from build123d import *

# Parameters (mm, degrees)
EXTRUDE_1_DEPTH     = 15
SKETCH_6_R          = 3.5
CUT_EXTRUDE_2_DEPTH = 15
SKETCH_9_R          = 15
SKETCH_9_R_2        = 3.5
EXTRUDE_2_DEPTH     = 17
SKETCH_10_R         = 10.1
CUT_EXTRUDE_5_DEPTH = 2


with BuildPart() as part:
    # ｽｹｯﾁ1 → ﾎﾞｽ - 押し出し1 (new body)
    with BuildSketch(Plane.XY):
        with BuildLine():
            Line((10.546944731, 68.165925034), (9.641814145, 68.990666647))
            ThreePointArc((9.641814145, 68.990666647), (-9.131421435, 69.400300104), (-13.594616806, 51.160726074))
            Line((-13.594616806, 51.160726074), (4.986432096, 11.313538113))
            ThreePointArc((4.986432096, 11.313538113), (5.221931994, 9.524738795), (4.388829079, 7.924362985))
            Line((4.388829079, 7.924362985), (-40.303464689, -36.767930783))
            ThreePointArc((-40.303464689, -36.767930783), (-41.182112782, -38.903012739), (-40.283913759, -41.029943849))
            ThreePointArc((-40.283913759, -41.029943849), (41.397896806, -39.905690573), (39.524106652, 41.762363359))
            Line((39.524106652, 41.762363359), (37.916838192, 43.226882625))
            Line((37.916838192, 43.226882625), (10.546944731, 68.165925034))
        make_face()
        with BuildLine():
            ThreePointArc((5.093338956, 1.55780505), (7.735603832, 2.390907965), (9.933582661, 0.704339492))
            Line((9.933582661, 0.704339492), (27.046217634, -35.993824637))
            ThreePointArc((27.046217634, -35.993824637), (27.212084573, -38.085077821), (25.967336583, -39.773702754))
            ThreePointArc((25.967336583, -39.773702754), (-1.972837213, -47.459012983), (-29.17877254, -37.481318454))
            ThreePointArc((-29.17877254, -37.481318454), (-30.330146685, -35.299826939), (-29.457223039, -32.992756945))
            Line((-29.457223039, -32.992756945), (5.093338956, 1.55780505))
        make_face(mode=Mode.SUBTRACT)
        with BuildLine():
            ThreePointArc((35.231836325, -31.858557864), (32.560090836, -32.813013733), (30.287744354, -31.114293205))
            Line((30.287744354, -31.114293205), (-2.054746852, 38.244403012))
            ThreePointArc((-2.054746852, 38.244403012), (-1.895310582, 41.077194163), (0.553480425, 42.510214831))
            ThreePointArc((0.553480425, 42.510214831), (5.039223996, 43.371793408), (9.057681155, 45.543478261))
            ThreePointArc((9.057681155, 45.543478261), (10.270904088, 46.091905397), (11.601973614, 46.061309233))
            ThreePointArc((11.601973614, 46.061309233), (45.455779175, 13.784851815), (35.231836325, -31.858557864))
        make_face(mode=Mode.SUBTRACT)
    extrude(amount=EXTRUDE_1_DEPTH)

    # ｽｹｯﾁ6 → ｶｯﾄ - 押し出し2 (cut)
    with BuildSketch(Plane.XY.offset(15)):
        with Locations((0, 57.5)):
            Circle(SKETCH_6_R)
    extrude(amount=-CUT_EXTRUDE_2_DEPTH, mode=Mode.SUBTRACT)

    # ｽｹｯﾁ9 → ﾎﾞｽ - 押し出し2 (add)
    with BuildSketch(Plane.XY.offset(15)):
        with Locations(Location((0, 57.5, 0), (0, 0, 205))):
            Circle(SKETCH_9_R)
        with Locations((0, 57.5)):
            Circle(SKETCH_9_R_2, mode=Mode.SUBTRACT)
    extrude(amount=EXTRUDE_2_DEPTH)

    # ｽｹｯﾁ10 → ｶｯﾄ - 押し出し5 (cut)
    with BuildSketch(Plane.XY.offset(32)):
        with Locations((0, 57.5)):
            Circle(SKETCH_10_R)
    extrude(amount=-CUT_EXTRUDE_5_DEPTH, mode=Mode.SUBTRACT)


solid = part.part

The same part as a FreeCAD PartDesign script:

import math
import FreeCAD as App
import Part
import Sketcher

doc = App.newDocument("Part")
params = doc.addObject("Spreadsheet::Sheet", "Params")
for row, (alias, value) in enumerate([
    ("sketch1_radius", "15 mm"),
    ("sketch1_radius2", "3 mm"),
    ("sketch1_radius3", "3 mm"),
    ("sketch1_radius4", "3 mm"),
    ("sketch1_radius5", "3 mm"),
    ("pad1_length", "15 mm"),
    ("sketch2_diameter", "7 mm"),
    ("pocket1_length", "15 mm"),
    ("sketch3_diameter", "30 mm"),
    ("sketch3_diameter2", "7 mm"),
    ("pad2_length", "17 mm"),
    ("sketch4_diameter", "20.2 mm"),
    ("pocket2_length", "2 mm"),
], start=1):
    params.set(f"A{row}", alias)
    params.set(f"B{row}", "=" + value)
    params.setAlias(f"B{row}", alias)

body = doc.addObject("PartDesign::Body", "Body")

# Sketch on XY plane
sketch1 = body.newObject("Sketcher::SketchObject", "Sketch")
sketch1.AttachmentSupport = (doc.getObject("XY_Plane"), [""])
sketch1.MapMode = "FlatFace"
sketch1.addGeometry([
    Part.LineSegment(App.Vector(10.546945, 68.165925, 0), App.Vector(9.641814, 68.990667, 0)),  # 0
    Part.ArcOfCircle(Part.Circle(App.Vector(0, 57.5, 0), App.Vector(0, 0, 1), 15), math.radians(50), math.radians(205)),  # 1
    Part.LineSegment(App.Vector(-13.594617, 51.160726, 0), App.Vector(4.986432, 11.313538, 0)),  # 2
    Part.ArcOfCircle(Part.Circle(App.Vector(2.267509, 10.045683, 0), App.Vector(0, 0, 1), 3), math.radians(-45), math.radians(25)),  # 3
    Part.LineSegment(App.Vector(4.388829, 7.924363, 0), App.Vector(-40.303465, -36.767931, 0)),  # 4
    Part.ArcOfCircle(Part.Circle(App.Vector(-38.182144, -38.889251, 0), App.Vector(0, 0, 1), 3), math.radians(135), math.radians(225.525657)),  # 5
    Part.ArcOfCircle(Part.Circle(App.Vector(0, 0, 0), App.Vector(0, 0, 1), 57.5), math.radians(-134.474343), math.radians(46.577265)),  # 6
    Part.LineSegment(App.Vector(39.524107, 41.762363, 0), App.Vector(37.916838, 43.226883, 0)),  # 7
    Part.LineSegment(App.Vector(37.916838, 43.226883, 0), App.Vector(10.546945, 68.165925, 0)),  # 8
    Part.LineSegment(App.Vector(-29.457223, -32.992757, 0), App.Vector(5.093339, 1.557805, 0)),  # 9
    Part.ArcOfCircle(Part.Circle(App.Vector(7.214659, -0.563515, 0), App.Vector(0, 0, 1), 3), math.radians(25), math.radians(135)),  # 10
    Part.LineSegment(App.Vector(9.933583, 0.704339, 0), App.Vector(27.046218, -35.993825, 0)),  # 11
    Part.ArcOfCircle(Part.Circle(App.Vector(24.327294, -37.261679, 0), App.Vector(0, 0, 1), 3), math.radians(-56.860403), math.radians(25)),  # 12
    Part.ArcOfCircle(Part.Circle(App.Vector(0, 0, 0), App.Vector(0, 0, 1), 47.5), math.radians(-127.900345), math.radians(-56.860403)),  # 13
    Part.ArcOfCircle(Part.Circle(App.Vector(-27.335903, -35.114077, 0), App.Vector(0, 0, 1), 3), math.radians(135), math.radians(232.099655)),  # 14
    Part.ArcOfCircle(Part.Circle(App.Vector(0, 0, 0), App.Vector(0, 0, 1), 47.5), math.radians(-42.121615), math.radians(75.862362)),  # 15
    Part.ArcOfCircle(Part.Circle(App.Vector(33.006668, -29.846438, 0), App.Vector(0, 0, 1), 3), math.radians(-155), math.radians(-42.121615)),  # 16
    Part.LineSegment(App.Vector(30.287744, -31.114293, 0), App.Vector(-2.054747, 38.244403, 0)),  # 17
    Part.ArcOfCircle(Part.Circle(App.Vector(0.664177, 39.512258, 0), App.Vector(0, 0, 1), 3), math.radians(92.11462), math.radians(205)),  # 18
    Part.ArcOfCircle(Part.Circle(App.Vector(0, 57.5, 0), App.Vector(0, 0, 1), 15), math.radians(-87.88538), math.radians(-52.854196)),  # 19
    Part.ArcOfCircle(Part.Circle(App.Vector(10.869217, 43.152174, 0), App.Vector(0, 0, 1), 3), math.radians(75.862362), math.radians(127.145804)),  # 20
], False)
sketch1.addConstraint([
    Sketcher.Constraint("Coincident", 0, 2, 1, 1),
    Sketcher.Constraint("Coincident", 1, 2, 2, 1),
    Sketcher.Constraint("Coincident", 2, 2, 3, 2),
    Sketcher.Constraint("Coincident", 3, 1, 4, 1),
    Sketcher.Constraint("Coincident", 4, 2, 5, 1),
    Sketcher.Constraint("Coincident", 5, 2, 6, 1),
    Sketcher.Constraint("Coincident", 6, 2, 7, 1),
    Sketcher.Constraint("Coincident", 7, 2, 8, 1),
    Sketcher.Constraint("Coincident", 8, 2, 0, 1),
    Sketcher.Constraint("Coincident", 9, 2, 10, 2),
    Sketcher.Constraint("Coincident", 10, 1, 11, 1),
    Sketcher.Constraint("Coincident", 11, 2, 12, 2),
    Sketcher.Constraint("Coincident", 12, 1, 13, 2),
    Sketcher.Constraint("Coincident", 13, 1, 14, 2),
    Sketcher.Constraint("Coincident", 14, 1, 9, 1),
    Sketcher.Constraint("Coincident", 15, 1, 16, 2),
    Sketcher.Constraint("Coincident", 16, 1, 17, 1),
    Sketcher.Constraint("Coincident", 17, 2, 18, 2),
    Sketcher.Constraint("Coincident", 18, 1, 19, 1),
    Sketcher.Constraint("Coincident", 19, 2, 20, 2),
    Sketcher.Constraint("Coincident", 20, 1, 15, 2),
    Sketcher.Constraint("Coincident", 6, 3, -1, 1),
    Sketcher.Constraint("Coincident", 13, 3, -1, 1),
    Sketcher.Constraint("Coincident", 15, 3, -1, 1),
    Sketcher.Constraint("Coincident", 19, 3, 1, 3),
    Sketcher.Constraint("PointOnObject", 1, 3, -2),
    Sketcher.Constraint("Radius", 1, 15.0),
    Sketcher.Constraint("Radius", 3, 3.0),
    Sketcher.Constraint("Radius", 5, 3.0),
    Sketcher.Constraint("Radius", 10, 3.0),
    Sketcher.Constraint("Radius", 12, 3.0),
    Sketcher.Constraint("Radius", 14, 3.0),
    Sketcher.Constraint("Radius", 16, 3.0),
    Sketcher.Constraint("Radius", 18, 3.0),
    Sketcher.Constraint("Radius", 19, 15.0),
    Sketcher.Constraint("Radius", 20, 3.0),
    Sketcher.Constraint("Radius", 6, 57.5),
    Sketcher.Constraint("Radius", 13, 47.5),
    Sketcher.Constraint("Radius", 15, 47.5),
    Sketcher.Constraint("DistanceY", -1, 1, 1, 3, 57.5),
    Sketcher.Constraint("DistanceY", 10, 3, 3, 3, 10.609199),
    Sketcher.Constraint("DistanceY", 1, 2, 8, 2, 17.005199),
    Sketcher.Constraint("DistanceX", 12, 1, 15, 1, 9.2645),
    Sketcher.Constraint("DistanceX", 18, 1, 19, 2, 8.504201),
    Sketcher.Constraint("Distance", 8, 37.027921),
    Sketcher.Constraint("DistanceX", -1, 1, 3, 3, 2.267509),
    Sketcher.Constraint("DistanceY", 5, 3, -1, 1, 38.889251),
    Sketcher.Constraint("DistanceX", -1, 1, 10, 3, 7.214659),
    Sketcher.Constraint("DistanceY", 12, 3, -1, 1, 37.261679),
    Sketcher.Constraint("DistanceY", 16, 3, -1, 1, 29.846438),
    Sketcher.Constraint("DistanceY", -1, 1, 2, 2, 11.313538),
    Sketcher.Constraint("DistanceX", -1, 1, 3, 1, 4.388829),
    Sketcher.Constraint("DistanceY", 4, 2, -1, 1, 36.767931),
    Sketcher.Constraint("DistanceX", -1, 1, 7, 2, 37.916838),
    Sketcher.Constraint("DistanceX", -1, 1, 9, 2, 5.093339),
    Sketcher.Constraint("DistanceY", -1, 1, 10, 1, 0.704339),
    Sketcher.Constraint("DistanceY", 13, 1, -1, 1, 37.481318),
    Sketcher.Constraint("DistanceX", -1, 1, 18, 1, 0.55348),
    Sketcher.Constraint("DistanceY", -1, 1, 20, 1, 46.061309),
    Sketcher.Constraint("DistanceX", 5, 3, 14, 3, 10.846242),
    Sketcher.Constraint("DistanceY", 14, 3, 10, 3, 34.550562),
    Sketcher.Constraint("DistanceX", 18, 3, 20, 3, 10.205041),
    Sketcher.Constraint("DistanceY", 18, 3, 0, 2, 29.478409),
    Sketcher.Constraint("DistanceY", 18, 3, 1, 2, 11.648468),
    Sketcher.Constraint("DistanceX", 5, 2, 5, 3, 2.101769),
    Sketcher.Constraint("DistanceX", 20, 3, 6, 2, 28.654889),
    Sketcher.Constraint("DistanceY", 6, 2, 7, 2, 1.464519),
    Sketcher.Constraint("DistanceX", 11, 2, 16, 3, 5.96045),
    Sketcher.Constraint("DistanceX", 12, 1, 11, 2, 1.078881),
    Sketcher.Constraint("DistanceX", 14, 1, 14, 3, 2.12132),
    Sketcher.Constraint("DistanceX", 16, 1, 15, 1, 4.944092),
    Sketcher.Constraint("DistanceY", 17, 2, 20, 3, 4.907771),
])
sketch1.setExpression("Constraints[26]", "Params.sketch1_radius")
sketch1.setExpression("Constraints[27]", "Params.sketch1_radius2")
sketch1.setExpression("Constraints[28]", "Params.sketch1_radius3")
sketch1.setExpression("Constraints[29]", "Params.sketch1_radius4")
sketch1.setExpression("Constraints[30]", "Params.sketch1_radius5")
pad1 = body.newObject("PartDesign::Pad", "Pad")
pad1.Profile = sketch1
pad1.setExpression("Length", "Params.pad1_length")

# Sketch on XY plane
sketch2 = body.newObject("Sketcher::SketchObject", "Sketch001")
sketch2.AttachmentSupport = (doc.getObject("XY_Plane"), [""])
sketch2.MapMode = "FlatFace"
sketch2.AttachmentOffset = App.Placement(App.Vector(0, 0, 15), App.Rotation())
sketch2.addGeometry(Part.Circle(App.Vector(0, 57.5, 0), App.Vector(0, 0, 1), 3.5), False)
sketch2.addConstraint([
    Sketcher.Constraint("PointOnObject", 0, 3, -2),
    Sketcher.Constraint("Diameter", 0, 7.0),
    Sketcher.Constraint("DistanceY", -1, 1, 0, 3, 57.5),
])
sketch2.setExpression("Constraints[1]", "Params.sketch2_diameter")
pocket1 = body.newObject("PartDesign::Pocket", "Pocket")
pocket1.Profile = sketch2
pocket1.setExpression("Length", "Params.pocket1_length")

# Sketch on XY plane
sketch3 = body.newObject("Sketcher::SketchObject", "Sketch002")
sketch3.AttachmentSupport = (doc.getObject("XY_Plane"), [""])
sketch3.MapMode = "FlatFace"
sketch3.AttachmentOffset = App.Placement(App.Vector(0, 0, 15), App.Rotation())
sketch3.addGeometry([
    Part.Circle(App.Vector(0, 57.5, 0), App.Vector(0, 0, 1), 15),
    Part.Circle(App.Vector(0, 57.5, 0), App.Vector(0, 0, 1), 3.5),
], False)
sketch3.addConstraint([
    Sketcher.Constraint("Coincident", 1, 3, 0, 3),
    Sketcher.Constraint("PointOnObject", 0, 3, -2),
    Sketcher.Constraint("Diameter", 0, 30.0),
    Sketcher.Constraint("Diameter", 1, 7.0),
    Sketcher.Constraint("DistanceY", -1, 1, 0, 3, 57.5),
])
sketch3.setExpression("Constraints[2]", "Params.sketch3_diameter")
sketch3.setExpression("Constraints[3]", "Params.sketch3_diameter2")
pad2 = body.newObject("PartDesign::Pad", "Pad001")
pad2.Profile = sketch3
pad2.setExpression("Length", "Params.pad2_length")

# Sketch on XY plane
sketch4 = body.newObject("Sketcher::SketchObject", "Sketch003")
sketch4.AttachmentSupport = (doc.getObject("XY_Plane"), [""])
sketch4.MapMode = "FlatFace"
sketch4.AttachmentOffset = App.Placement(App.Vector(0, 0, 32), App.Rotation())
sketch4.addGeometry(Part.Circle(App.Vector(0, 58, 0), App.Vector(0, 0, 1), 10), False)
sketch4.addConstraint([
    Sketcher.Constraint("PointOnObject", 0, 3, -2),
    Sketcher.Constraint("Diameter", 0, 20.2),
    Sketcher.Constraint("DistanceY", -1, 1, 0, 3, 57.5),
])
sketch4.setExpression("Constraints[1]", "Params.sketch4_diameter")
pocket2 = body.newObject("PartDesign::Pocket", "Pocket001")
pocket2.Profile = sketch4
pocket2.setExpression("Length", "Params.pocket2_length")

doc.recompute()
